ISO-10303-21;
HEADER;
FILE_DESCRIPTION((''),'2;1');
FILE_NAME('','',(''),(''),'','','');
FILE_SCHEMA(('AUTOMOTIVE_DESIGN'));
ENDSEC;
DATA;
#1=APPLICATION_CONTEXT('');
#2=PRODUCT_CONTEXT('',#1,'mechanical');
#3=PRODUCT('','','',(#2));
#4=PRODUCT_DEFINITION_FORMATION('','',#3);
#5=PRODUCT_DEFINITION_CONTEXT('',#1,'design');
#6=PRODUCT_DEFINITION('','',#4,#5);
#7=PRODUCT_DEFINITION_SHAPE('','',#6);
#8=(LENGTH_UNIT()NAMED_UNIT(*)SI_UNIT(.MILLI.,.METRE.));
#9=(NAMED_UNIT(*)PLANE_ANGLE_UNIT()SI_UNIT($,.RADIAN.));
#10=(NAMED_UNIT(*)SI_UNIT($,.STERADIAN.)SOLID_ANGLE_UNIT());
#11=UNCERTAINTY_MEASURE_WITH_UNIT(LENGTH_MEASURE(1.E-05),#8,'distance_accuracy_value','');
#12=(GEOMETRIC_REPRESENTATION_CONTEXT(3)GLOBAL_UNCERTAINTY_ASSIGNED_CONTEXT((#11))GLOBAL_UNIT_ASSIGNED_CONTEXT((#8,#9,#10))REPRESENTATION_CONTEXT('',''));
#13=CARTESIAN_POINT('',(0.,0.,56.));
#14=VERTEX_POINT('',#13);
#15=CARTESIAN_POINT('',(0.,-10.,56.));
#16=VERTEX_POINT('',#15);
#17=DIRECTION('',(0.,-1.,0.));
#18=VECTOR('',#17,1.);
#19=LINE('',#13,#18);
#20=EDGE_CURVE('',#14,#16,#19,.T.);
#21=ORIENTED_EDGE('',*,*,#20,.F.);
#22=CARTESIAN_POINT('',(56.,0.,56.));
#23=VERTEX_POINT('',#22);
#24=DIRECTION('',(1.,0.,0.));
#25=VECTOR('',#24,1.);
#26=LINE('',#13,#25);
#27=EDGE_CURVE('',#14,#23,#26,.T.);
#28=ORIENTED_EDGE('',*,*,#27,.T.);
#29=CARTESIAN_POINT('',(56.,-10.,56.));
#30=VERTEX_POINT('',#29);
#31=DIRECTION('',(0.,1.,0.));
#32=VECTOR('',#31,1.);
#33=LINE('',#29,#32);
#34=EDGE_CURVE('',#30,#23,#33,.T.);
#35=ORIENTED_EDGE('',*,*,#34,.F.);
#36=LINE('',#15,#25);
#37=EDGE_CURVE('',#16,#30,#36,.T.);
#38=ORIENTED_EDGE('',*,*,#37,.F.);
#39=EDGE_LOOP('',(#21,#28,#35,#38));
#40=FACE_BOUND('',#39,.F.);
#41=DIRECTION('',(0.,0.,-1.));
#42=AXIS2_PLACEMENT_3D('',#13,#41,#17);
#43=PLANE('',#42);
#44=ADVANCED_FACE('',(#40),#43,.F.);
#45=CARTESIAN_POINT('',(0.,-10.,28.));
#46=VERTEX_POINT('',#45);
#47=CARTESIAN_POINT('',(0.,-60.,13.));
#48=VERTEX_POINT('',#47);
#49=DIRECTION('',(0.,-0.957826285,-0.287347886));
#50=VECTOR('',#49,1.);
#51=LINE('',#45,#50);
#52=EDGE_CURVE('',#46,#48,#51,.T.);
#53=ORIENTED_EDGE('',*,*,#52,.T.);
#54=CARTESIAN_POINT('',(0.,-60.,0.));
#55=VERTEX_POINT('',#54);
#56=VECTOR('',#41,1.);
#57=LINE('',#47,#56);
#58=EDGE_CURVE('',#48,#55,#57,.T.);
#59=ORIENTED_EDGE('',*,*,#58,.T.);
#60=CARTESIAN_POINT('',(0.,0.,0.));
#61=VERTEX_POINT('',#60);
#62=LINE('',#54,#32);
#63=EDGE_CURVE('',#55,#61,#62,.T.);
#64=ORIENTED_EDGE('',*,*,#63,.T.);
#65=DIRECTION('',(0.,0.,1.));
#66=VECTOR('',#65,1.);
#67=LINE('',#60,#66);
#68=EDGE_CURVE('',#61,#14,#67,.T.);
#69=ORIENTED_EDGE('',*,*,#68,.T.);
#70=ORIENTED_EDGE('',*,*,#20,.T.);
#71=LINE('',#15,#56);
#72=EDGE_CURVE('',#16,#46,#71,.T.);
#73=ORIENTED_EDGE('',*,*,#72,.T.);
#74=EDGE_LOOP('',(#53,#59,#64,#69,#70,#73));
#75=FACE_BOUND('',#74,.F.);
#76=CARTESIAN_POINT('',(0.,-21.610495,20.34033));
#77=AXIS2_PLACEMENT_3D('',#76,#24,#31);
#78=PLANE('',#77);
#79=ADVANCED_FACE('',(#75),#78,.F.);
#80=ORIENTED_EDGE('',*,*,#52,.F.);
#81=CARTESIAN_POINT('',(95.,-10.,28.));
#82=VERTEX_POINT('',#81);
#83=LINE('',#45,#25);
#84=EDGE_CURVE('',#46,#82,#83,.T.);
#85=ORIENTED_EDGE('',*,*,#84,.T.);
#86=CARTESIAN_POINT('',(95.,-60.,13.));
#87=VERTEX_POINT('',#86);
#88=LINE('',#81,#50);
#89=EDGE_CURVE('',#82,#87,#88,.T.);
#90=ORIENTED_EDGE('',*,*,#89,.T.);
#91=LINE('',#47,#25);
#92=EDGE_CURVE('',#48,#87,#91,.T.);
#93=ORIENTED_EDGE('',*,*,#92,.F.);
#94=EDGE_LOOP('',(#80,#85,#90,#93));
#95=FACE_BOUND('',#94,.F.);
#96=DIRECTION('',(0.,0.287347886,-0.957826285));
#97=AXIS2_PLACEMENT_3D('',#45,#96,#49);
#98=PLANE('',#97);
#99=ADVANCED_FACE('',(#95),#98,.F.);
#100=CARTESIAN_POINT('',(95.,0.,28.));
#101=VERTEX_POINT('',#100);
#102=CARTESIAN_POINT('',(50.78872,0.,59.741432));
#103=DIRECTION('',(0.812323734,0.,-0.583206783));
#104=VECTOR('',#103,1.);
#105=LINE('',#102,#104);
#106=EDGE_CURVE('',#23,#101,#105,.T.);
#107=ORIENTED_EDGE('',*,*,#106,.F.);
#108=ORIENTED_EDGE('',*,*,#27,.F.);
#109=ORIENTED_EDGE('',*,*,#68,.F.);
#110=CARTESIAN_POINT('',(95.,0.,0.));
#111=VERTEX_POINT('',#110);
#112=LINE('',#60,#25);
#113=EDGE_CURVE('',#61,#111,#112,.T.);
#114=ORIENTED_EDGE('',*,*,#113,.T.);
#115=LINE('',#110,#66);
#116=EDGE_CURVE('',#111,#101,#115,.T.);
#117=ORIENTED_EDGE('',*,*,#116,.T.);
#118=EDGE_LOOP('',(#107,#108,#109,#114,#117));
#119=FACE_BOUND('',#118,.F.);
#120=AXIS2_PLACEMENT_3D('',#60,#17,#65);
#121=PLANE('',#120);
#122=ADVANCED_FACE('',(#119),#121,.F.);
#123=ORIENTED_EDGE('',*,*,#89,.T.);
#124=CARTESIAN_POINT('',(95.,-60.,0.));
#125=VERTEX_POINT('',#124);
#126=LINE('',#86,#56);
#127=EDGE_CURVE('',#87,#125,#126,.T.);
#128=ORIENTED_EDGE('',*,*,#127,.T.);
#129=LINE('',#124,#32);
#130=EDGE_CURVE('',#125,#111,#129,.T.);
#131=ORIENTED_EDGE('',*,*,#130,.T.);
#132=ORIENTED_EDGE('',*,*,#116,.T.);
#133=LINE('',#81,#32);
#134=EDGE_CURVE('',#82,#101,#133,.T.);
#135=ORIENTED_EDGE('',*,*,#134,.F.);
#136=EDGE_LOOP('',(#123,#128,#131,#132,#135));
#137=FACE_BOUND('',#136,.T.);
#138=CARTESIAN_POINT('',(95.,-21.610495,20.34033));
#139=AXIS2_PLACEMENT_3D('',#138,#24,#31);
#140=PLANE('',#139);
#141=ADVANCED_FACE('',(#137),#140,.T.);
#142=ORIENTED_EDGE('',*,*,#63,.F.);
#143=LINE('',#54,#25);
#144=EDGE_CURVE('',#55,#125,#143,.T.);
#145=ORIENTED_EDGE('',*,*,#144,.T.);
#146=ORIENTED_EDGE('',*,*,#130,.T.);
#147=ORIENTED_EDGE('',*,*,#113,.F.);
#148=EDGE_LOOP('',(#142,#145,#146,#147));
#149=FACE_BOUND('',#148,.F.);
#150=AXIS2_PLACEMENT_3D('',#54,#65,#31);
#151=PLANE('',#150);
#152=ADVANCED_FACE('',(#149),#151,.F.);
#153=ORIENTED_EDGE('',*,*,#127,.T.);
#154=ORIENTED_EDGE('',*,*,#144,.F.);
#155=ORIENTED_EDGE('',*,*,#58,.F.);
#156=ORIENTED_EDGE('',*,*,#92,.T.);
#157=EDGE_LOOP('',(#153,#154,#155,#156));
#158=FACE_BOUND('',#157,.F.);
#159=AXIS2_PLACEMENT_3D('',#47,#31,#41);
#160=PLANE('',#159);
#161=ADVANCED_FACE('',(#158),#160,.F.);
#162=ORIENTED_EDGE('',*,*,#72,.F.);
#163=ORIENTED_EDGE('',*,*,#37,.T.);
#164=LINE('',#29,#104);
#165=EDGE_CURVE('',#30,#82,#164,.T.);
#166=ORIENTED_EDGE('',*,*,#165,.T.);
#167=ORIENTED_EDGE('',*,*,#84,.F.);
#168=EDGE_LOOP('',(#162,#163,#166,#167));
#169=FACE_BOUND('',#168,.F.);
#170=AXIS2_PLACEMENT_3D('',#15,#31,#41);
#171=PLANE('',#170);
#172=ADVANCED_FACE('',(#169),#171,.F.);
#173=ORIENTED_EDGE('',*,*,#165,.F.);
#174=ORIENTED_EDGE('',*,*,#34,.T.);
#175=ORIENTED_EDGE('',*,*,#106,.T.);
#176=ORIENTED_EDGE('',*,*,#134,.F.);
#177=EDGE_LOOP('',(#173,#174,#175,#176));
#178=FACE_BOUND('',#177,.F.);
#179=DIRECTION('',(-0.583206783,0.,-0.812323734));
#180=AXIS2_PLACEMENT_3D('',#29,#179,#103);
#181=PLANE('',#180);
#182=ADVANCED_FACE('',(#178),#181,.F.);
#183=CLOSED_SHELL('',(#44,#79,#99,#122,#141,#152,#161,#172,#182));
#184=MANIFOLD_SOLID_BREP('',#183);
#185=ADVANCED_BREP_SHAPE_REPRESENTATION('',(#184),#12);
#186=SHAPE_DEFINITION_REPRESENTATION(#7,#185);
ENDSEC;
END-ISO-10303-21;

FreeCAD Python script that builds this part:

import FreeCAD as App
import Part
import Sketcher

V = App.Vector

doc = App.newDocument("Part")
body = doc.addObject("PartDesign::Body", "Body")

# Sketch on YZ plane
sketch1 = doc.addObject("Sketcher::SketchObject", "Sketch")
body.addObject(sketch1)
sketch1.AttachmentSupport = (doc.YZ_Plane, [""])
sketch1.MapMode = "FlatFace"
sketch1.addGeometry([
    Part.LineSegment(V(-60, 0, 0), V(0, 0, 0)),  # 0
    Part.LineSegment(V(0, 0, 0), V(0, 56, 0)),  # 1
    Part.LineSegment(V(0, 56, 0), V(-10, 56, 0)),  # 2
    Part.LineSegment(V(-10, 56, 0), V(-10, 28, 0)),  # 3
    Part.LineSegment(V(-10, 28, 0), V(-60, 13, 0)),  # 4
    Part.LineSegment(V(-60, 13, 0), V(-60, 0, 0)),  # 5
], False)
sketch1.addConstraint([
    Sketcher.Constraint("Coincident", 0, 2, 1, 1),
    Sketcher.Constraint("Coincident", 1, 2, 2, 1),
    Sketcher.Constraint("Coincident", 2, 2, 3, 1),
    Sketcher.Constraint("Coincident", 3, 2, 4, 1),
    Sketcher.Constraint("Coincident", 4, 2, 5, 1),
    Sketcher.Constraint("Coincident", 5, 2, 0, 1),
    Sketcher.Constraint("Horizontal", 0),
    Sketcher.Constraint("Vertical", 1),
    Sketcher.Constraint("Horizontal", 2),
    Sketcher.Constraint("Vertical", 3),
    Sketcher.Constraint("Vertical", 5),
    Sketcher.Constraint("Coincident", 0, 2, -1, 1),
    Sketcher.Constraint("DistanceX", 0, 1, 0, 2, 60.0),
    Sketcher.Constraint("DistanceX", 2, 2, 2, 1, 10.0),
    Sketcher.Constraint("DistanceY", 1, 1, 1, 2, 56.0),
    Sketcher.Constraint("DistanceY", 3, 2, 3, 1, 28.0),
    Sketcher.Constraint("DistanceY", 5, 2, 5, 1, 13.0),
])
pad1 = doc.addObject("PartDesign::Pad", "Pad")
body.addObject(pad1)
pad1.Profile = sketch1
pad1.Length = 95

# Sketch on XZ plane
sketch2 = doc.addObject("Sketcher::SketchObject", "Sketch001")
body.addObject(sketch2)
sketch2.AttachmentSupport = (doc.XZ_Plane, [""])
sketch2.MapMode = "FlatFace"
sketch2.AttachmentOffset = App.Placement(V(0, 0, 10), App.Rotation())
sketch2.addGeometry([
    Part.LineSegment(V(95, 56, 0), V(56, 56, 0)),
    Part.LineSegment(V(56, 56, 0), V(95, 28, 0)),
    Part.LineSegment(V(95, 28, 0), V(95, 56, 0)),
], False)
sketch2.addConstraint([
    Sketcher.Constraint("Coincident", 0, 2, 1, 1),
    Sketcher.Constraint("Coincident", 1, 2, 2, 1),
    Sketcher.Constraint("Coincident", 2, 2, 0, 1),
    Sketcher.Constraint("Horizontal", 0),
    Sketcher.Constraint("Vertical", 2),
    Sketcher.Constraint("DistanceX", 0, 2, 0, 1, 39.0),
    Sketcher.Constraint("DistanceY", 2, 1, 2, 2, 28.0),
    Sketcher.Constraint("DistanceX", -1, 1, 0, 2, 56.0),
    Sketcher.Constraint("DistanceY", -1, 1, 0, 2, 56.0),
])
pocket1 = doc.addObject("PartDesign::Pocket", "Pocket")
body.addObject(pocket1)
pocket1.Profile = sketch2
pocket1.Length = 25

doc.recompute()
